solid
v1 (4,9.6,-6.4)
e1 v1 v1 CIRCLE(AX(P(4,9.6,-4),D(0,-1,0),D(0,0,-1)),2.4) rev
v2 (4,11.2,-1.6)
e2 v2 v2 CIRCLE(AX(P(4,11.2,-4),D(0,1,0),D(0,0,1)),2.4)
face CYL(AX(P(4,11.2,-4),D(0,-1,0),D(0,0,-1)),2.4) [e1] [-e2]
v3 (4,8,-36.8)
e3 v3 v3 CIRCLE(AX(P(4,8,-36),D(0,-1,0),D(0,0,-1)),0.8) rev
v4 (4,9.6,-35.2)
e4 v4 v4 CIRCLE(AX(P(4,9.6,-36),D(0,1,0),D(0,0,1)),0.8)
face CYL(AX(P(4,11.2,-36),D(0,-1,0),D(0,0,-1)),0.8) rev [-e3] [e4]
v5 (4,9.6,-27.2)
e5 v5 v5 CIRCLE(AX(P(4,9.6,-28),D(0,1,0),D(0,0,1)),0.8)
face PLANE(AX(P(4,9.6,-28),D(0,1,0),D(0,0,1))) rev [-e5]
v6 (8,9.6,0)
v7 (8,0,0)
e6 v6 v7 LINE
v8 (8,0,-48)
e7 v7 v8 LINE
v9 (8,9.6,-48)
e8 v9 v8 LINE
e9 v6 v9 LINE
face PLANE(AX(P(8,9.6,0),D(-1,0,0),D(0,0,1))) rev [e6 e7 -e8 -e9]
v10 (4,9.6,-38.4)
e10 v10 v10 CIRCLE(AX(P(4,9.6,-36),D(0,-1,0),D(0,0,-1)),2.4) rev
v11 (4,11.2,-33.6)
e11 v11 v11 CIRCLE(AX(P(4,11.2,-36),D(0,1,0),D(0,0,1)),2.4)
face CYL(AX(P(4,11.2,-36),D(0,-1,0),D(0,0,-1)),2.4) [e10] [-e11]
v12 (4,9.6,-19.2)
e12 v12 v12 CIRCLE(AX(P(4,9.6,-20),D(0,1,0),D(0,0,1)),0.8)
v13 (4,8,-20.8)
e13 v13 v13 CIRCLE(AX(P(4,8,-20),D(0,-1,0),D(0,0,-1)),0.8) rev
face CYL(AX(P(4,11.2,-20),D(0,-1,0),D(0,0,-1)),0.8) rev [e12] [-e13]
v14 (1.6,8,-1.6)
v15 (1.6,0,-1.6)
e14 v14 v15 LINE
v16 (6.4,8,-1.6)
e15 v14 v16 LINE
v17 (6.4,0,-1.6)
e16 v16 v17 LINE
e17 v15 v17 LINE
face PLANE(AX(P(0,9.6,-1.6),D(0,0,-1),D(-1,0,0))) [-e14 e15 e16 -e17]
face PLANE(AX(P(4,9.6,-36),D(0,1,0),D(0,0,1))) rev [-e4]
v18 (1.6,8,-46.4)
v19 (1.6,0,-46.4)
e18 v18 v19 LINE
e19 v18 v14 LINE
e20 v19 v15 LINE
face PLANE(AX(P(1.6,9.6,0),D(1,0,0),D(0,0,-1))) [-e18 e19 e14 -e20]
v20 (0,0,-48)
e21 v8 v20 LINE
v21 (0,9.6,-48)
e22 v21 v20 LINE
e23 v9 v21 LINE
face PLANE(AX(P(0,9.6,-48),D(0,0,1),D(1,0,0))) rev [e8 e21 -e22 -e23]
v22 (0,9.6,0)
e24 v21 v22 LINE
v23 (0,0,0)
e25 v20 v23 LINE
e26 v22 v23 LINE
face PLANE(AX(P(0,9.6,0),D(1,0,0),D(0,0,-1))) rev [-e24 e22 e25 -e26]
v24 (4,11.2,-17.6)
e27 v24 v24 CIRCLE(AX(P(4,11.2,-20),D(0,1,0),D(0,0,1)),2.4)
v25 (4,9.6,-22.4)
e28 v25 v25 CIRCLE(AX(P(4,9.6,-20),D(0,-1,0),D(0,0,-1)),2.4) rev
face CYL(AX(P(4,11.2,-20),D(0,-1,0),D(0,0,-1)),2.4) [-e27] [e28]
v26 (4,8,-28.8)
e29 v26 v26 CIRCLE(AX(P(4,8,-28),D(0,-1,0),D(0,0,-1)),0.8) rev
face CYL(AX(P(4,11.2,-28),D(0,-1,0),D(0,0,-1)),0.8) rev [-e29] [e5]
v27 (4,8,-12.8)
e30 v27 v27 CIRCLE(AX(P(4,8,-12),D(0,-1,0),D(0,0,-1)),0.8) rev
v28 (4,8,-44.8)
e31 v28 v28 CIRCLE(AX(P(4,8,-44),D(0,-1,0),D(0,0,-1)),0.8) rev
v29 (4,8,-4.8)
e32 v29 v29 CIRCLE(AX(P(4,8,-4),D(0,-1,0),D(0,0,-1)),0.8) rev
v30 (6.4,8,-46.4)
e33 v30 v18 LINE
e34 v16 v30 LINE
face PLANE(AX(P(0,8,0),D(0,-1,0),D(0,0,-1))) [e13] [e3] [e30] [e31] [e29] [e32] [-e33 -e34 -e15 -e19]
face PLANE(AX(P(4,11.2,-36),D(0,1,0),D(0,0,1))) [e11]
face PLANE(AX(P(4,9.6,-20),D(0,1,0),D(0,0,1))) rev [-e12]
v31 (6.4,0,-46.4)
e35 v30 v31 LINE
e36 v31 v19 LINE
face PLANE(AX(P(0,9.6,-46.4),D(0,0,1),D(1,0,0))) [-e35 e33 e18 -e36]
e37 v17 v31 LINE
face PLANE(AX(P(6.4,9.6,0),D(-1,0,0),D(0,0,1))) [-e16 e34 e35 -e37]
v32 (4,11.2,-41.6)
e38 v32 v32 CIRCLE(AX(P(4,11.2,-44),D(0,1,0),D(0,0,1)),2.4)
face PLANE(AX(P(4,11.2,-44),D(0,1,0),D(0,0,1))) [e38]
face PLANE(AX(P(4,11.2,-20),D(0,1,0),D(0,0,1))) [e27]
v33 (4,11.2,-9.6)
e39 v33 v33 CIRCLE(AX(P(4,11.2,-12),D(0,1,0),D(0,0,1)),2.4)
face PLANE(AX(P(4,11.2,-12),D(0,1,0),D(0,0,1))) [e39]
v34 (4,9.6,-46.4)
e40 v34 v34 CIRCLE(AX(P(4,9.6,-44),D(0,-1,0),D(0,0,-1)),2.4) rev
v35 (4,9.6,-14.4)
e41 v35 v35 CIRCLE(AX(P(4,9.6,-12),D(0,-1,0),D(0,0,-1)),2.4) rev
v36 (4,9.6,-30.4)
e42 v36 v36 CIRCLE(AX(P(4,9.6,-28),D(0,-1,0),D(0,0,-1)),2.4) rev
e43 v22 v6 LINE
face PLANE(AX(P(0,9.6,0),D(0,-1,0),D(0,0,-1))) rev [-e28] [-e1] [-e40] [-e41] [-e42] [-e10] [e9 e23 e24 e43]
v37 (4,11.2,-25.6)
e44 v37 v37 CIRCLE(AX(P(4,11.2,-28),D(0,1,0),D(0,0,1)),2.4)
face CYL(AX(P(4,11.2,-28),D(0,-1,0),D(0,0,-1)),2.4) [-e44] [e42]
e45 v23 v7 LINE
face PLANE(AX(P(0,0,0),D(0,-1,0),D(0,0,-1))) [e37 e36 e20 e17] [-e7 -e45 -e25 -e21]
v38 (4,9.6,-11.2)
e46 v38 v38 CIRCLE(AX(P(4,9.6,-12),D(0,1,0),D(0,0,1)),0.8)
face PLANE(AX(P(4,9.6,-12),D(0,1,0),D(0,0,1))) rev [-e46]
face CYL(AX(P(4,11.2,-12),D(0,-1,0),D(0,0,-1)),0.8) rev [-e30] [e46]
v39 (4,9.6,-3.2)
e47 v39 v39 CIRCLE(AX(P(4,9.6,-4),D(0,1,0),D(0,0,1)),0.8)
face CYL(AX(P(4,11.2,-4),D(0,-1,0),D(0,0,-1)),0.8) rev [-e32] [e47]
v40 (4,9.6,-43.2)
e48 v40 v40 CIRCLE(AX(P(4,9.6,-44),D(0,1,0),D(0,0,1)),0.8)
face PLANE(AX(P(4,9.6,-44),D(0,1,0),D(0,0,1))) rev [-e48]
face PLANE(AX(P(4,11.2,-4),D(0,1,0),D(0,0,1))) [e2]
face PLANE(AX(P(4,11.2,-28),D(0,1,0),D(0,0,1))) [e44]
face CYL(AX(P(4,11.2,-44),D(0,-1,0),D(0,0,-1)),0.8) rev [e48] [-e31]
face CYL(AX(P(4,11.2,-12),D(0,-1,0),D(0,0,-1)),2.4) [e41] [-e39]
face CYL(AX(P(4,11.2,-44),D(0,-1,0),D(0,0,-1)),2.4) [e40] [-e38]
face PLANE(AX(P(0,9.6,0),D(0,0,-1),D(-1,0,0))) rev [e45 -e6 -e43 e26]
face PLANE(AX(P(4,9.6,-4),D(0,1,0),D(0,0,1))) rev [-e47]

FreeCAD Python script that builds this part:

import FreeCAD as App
import Part
import Sketcher
from FreeCAD import Vector


def faces_at(feature, points):
    """Names of the faces that lie closest to the given points."""
    faces = feature.Shape.Faces
    near = lambda p: min(range(len(faces)), key=lambda i: faces[i].distToShape(Part.Vertex(*p))[0])
    return sorted({f"Face{near(p) + 1}" for p in points})


def add_polygon(sketch, points):
    """Adds a closed chain of lines whose ends are joined by coincident constraints."""
    first, n = sketch.GeometryCount, len(points)
    for a, b in zip(points, points[1:] + points[:1]):
        sketch.addGeometry(Part.LineSegment(App.Vector(*a, 0), App.Vector(*b, 0)), False)
    for i in range(n):
        sketch.addConstraint(Sketcher.Constraint("Coincident", first + i, 2, first + (i + 1) % n, 1))

doc = App.newDocument("Part")
body = doc.addObject("PartDesign::Body", "Body")

sketch1 = doc.addObject("Sketcher::SketchObject", "Sketch")
body.addObject(sketch1)
sketch1.AttachmentSupport = (doc.XZ_Plane, [""])
sketch1.MapMode = "FlatFace"
add_polygon(sketch1, [(0, -48), (0, 0), (8, 0), (8, -48)])
sketch1.addConstraint([
    Sketcher.Constraint("Vertical", 0),
    Sketcher.Constraint("Horizontal", 1),
    Sketcher.Constraint("Vertical", 2),
    Sketcher.Constraint("Horizontal", 3),
    Sketcher.Constraint("Coincident", 0, 2, -1, 1),
    Sketcher.Constraint("DistanceX", 1, 1, 1, 2, 8.0),
    Sketcher.Constraint("DistanceY", 0, 1, 0, 2, 48.0),
])
pad1 = doc.addObject("PartDesign::Pad", "Pad")
body.addObject(pad1)
pad1.Profile = sketch1
pad1.Length = 9.6
pad1.Reversed = True

sketch2 = doc.addObject("Sketcher::SketchObject", "Sketch001")
body.addObject(sketch2)
sketch2.AttachmentSupport = (doc.XZ_Plane, [""])
sketch2.MapMode = "FlatFace"
sketch2.AttachmentOffset = App.Placement(Vector(0, 0, -9.6), App.Rotation())
sketch2.addGeometry(Part.Circle(Vector(4, -4, 0), Vector(0, 0, 1), 2.4), False)
sketch2.addConstraint([
    Sketcher.Constraint("Diameter", 0, 4.8),
    Sketcher.Constraint("DistanceX", -1, 1, 0, 3, 4.0),
    Sketcher.Constraint("DistanceY", 0, 3, -1, 1, 4.0),
])
pad2 = doc.addObject("PartDesign::Pad", "Pad001")
body.addObject(pad2)
pad2.Profile = sketch2
pad2.Length = 1.6
pad2.Reversed = True
doc.recompute()

linearpattern = doc.addObject("PartDesign::LinearPattern", "LinearPattern")
body.addObject(linearpattern)
linearpattern.Originals = [pad2]
linearpattern.Direction = (doc.Z_Axis, [""])
linearpattern.Mode = "offset"
linearpattern.Offset = 8
linearpattern.Occurrences = 6
linearpattern.Reversed = True
body.Tip = linearpattern
doc.recompute()

thickness = doc.addObject("PartDesign::Thickness", "Thickness")
body.addObject(thickness)
thickness.Base = (linearpattern, faces_at(linearpattern, [(4, 0, -24)]))
thickness.Value = 1.6
thickness.Reversed = True
thickness.Join = "Intersection"

doc.recompute()
